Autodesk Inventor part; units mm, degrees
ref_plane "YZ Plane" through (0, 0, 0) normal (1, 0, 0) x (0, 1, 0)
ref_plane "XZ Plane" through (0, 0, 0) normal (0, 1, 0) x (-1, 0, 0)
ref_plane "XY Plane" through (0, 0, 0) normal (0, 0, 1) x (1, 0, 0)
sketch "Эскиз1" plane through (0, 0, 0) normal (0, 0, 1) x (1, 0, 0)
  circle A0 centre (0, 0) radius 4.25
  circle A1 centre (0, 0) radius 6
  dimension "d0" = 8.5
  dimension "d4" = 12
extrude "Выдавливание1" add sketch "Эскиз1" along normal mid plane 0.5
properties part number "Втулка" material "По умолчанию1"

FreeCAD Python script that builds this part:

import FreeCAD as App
import Part
import Sketcher

V = App.Vector

doc = App.newDocument("Part")
body = doc.addObject("PartDesign::Body", "Body")

sketch1 = body.newObject("Sketcher::SketchObject", "Sketch")
sketch1.AttachmentSupport = (doc.getObject("XY_Plane"), [""])
sketch1.MapMode = "FlatFace"
sketch1.addGeometry(Part.Circle(V(0, 0, 0), V(0, 0, 1), 6), False)
sketch1.addGeometry(Part.Circle(V(0, 0, 0), V(0, 0, 1), 4.2), False)
sketch1.addConstraint(Sketcher.Constraint("Coincident", 0, 3, -1, 1))
sketch1.addConstraint(Sketcher.Constraint("Coincident", 1, 3, -1, 1))
sketch1.addConstraint(Sketcher.Constraint("Diameter", 0, 12.0))
sketch1.addConstraint(Sketcher.Constraint("Diameter", 1, 8.5))
pad1 = body.newObject("PartDesign::Pad", "Pad")
pad1.Profile = sketch1
pad1.Length = 0.5
pad1.Midplane = True

doc.recompute()
